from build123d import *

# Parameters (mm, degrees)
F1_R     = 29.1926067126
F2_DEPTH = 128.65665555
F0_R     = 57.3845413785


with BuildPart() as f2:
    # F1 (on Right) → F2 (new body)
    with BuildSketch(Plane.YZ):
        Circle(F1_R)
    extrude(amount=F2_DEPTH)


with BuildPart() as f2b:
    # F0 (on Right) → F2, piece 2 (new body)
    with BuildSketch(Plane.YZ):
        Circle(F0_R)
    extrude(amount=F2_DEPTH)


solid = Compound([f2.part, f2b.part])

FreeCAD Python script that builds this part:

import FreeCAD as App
import Part
import Sketcher
Q = App.Units.Quantity

doc = App.newDocument("Part")
body = doc.addObject("PartDesign::Body", "Body")

# Sketch on YZ plane
sketch1 = doc.addObject("Sketcher::SketchObject", "Sketch")
body.addObject(sketch1)
sketch1.AttachmentSupport = (doc.YZ_Plane, [""])
sketch1.MapMode = "FlatFace"
sketch1.addGeometry(Part.Circle(App.Vector(0, 0, 0), App.Vector(0, 0, 1), 29), False)
sketch1.addConstraint([
    Sketcher.Constraint("Coincident", 0, 3, -1, 1),
    Sketcher.Constraint("Diameter", 0, Q("58.385213 mm")),
])
pad1 = doc.addObject("PartDesign::Pad", "Pad")
body.addObject(pad1)
pad1.Profile = sketch1
pad1.Length = 128.656656
body2 = doc.addObject("PartDesign::Body", "Body001")

# Sketch on YZ plane
sketch2 = doc.addObject("Sketcher::SketchObject", "Sketch001")
body2.addObject(sketch2)
sketch2.AttachmentSupport = (doc.getObject("YZ_Plane001"), [""])
sketch2.MapMode = "FlatFace"
sketch2.addGeometry(Part.Circle(App.Vector(0, 0, 0), App.Vector(0, 0, 1), 57), False)
sketch2.addConstraint([
    Sketcher.Constraint("Coincident", 0, 3, -1, 1),
    Sketcher.Constraint("Diameter", 0, Q("114.769083 mm")),
])
pad2 = doc.addObject("PartDesign::Pad", "Pad001")
body2.addObject(pad2)
pad2.Profile = sketch2
pad2.Length = 128.656656

doc.recompute()
